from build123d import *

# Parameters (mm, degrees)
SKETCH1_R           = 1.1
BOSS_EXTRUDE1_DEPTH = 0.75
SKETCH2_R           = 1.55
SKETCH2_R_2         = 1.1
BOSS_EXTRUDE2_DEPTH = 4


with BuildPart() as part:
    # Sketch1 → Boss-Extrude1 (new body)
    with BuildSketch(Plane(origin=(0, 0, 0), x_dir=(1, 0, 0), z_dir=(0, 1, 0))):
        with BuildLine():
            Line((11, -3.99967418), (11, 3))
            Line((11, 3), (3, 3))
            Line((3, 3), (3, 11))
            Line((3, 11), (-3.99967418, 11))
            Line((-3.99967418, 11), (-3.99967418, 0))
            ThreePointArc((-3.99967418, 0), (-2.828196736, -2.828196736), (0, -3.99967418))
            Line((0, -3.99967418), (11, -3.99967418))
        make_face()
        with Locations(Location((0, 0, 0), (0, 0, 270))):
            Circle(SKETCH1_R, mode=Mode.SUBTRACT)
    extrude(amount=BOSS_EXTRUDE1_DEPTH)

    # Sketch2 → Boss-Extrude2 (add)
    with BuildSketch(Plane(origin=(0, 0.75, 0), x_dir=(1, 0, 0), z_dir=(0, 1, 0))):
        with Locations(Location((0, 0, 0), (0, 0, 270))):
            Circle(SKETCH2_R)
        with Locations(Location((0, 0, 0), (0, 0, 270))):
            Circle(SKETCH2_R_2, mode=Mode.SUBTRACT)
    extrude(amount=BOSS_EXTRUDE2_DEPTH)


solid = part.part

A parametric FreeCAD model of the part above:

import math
import FreeCAD as App
import Part
import Sketcher
from FreeCAD import Vector

doc = App.newDocument("Part")
params = doc.addObject("Spreadsheet::Sheet", "Params")
for row, (alias, value) in enumerate([
    ("sketch1_diameter", "2.2 mm"),
    ("sketch1_width", "8 mm"),
    ("sketch1_width2", "11 mm"),
    ("pad1_length", "0.75 mm"),
    ("sketch2_diameter", "3.1 mm"),
    ("sketch2_diameter2", "2.2 mm"),
    ("pad2_length", "4 mm"),
], start=1):
    params.set(f"A{row}", alias)
    params.set(f"B{row}", "=" + value)
    params.setAlias(f"B{row}", alias)

body = doc.addObject("PartDesign::Body", "Body")

# Sketch on XZ plane
sketch1 = doc.addObject("Sketcher::SketchObject", "Sketch")
body.addObject(sketch1)
sketch1.AttachmentSupport = (doc.XZ_Plane, [""])
sketch1.MapMode = "FlatFace"
sketch1.addGeometry([
    Part.LineSegment(Vector(11, 3.999674, 0), Vector(11, -3, 0)),  # 0
    Part.LineSegment(Vector(11, -3, 0), Vector(3, -3, 0)),  # 1
    Part.LineSegment(Vector(3, -3, 0), Vector(3, -11, 0)),  # 2
    Part.LineSegment(Vector(3, -11, 0), Vector(-3.999674, -11, 0)),  # 3
    Part.LineSegment(Vector(-3.999674, -11, 0), Vector(-3.999674, 0, 0)),  # 4
    Part.ArcOfCircle(Part.Circle(Vector(0, 0, 0), Vector(0, 0, 1), 3.999674), math.radians(90), math.radians(180)),  # 5
    Part.LineSegment(Vector(0, 3.999674, 0), Vector(11, 3.999674, 0)),  # 6
    Part.Circle(Vector(0, 0, 0), Vector(0, 0, 1), 1.1),  # 7
], False)
sketch1.addConstraint([
    Sketcher.Constraint("Coincident", 0, 2, 1, 1),
    Sketcher.Constraint("Coincident", 1, 2, 2, 1),
    Sketcher.Constraint("Coincident", 2, 2, 3, 1),
    Sketcher.Constraint("Coincident", 3, 2, 4, 1),
    Sketcher.Constraint("Tangent", 4, 2, 5, 2),
    Sketcher.Constraint("Tangent", 5, 1, 6, 1),
    Sketcher.Constraint("Coincident", 6, 2, 0, 1),
    Sketcher.Constraint("Vertical", 0),
    Sketcher.Constraint("Horizontal", 1),
    Sketcher.Constraint("Vertical", 2),
    Sketcher.Constraint("Horizontal", 3),
    Sketcher.Constraint("Vertical", 4),
    Sketcher.Constraint("Horizontal", 6),
    Sketcher.Constraint("Coincident", 5, 3, -1, 1),
    Sketcher.Constraint("Coincident", 7, 3, -1, 1),
    Sketcher.Constraint("Equal", 3, 0),
    Sketcher.Constraint("Equal", 1, 2),
    Sketcher.Constraint("Diameter", 7, 2.2),
    Sketcher.Constraint("DistanceX", 1, 2, 1, 1, 8.0),
    Sketcher.Constraint("DistanceX", 6, 1, 6, 2, 11.0),
    Sketcher.Constraint("Radius", 5, 3.999674),
])
sketch1.setExpression("Constraints[17]", "Params.sketch1_diameter")
sketch1.setExpression("Constraints[18]", "Params.sketch1_width")
sketch1.setExpression("Constraints[19]", "Params.sketch1_width2")
pad1 = doc.addObject("PartDesign::Pad", "Pad")
body.addObject(pad1)
pad1.Profile = sketch1
pad1.setExpression("Length", "Params.pad1_length")
pad1.Reversed = True

# Sketch on XZ plane
sketch2 = doc.addObject("Sketcher::SketchObject", "Sketch001")
body.addObject(sketch2)
sketch2.AttachmentSupport = (doc.XZ_Plane, [""])
sketch2.MapMode = "FlatFace"
sketch2.AttachmentOffset = App.Placement(Vector(0, 0, -0.75), App.Rotation())
sketch2.addGeometry([
    Part.Circle(Vector(0, 0, 0), Vector(0, 0, 1), 1.55),
    Part.Circle(Vector(0, 0, 0), Vector(0, 0, 1), 1.1),
], False)
sketch2.addConstraint([
    Sketcher.Constraint("Coincident", 0, 3, -1, 1),
    Sketcher.Constraint("Coincident", 1, 3, -1, 1),
    Sketcher.Constraint("Diameter", 0, 3.1),
    Sketcher.Constraint("Diameter", 1, 2.2),
])
sketch2.setExpression("Constraints[2]", "Params.sketch2_diameter")
sketch2.setExpression("Constraints[3]", "Params.sketch2_diameter2")
pad2 = doc.addObject("PartDesign::Pad", "Pad001")
body.addObject(pad2)
pad2.Profile = sketch2
pad2.setExpression("Length", "Params.pad2_length")
pad2.Reversed = True

doc.recompute()
